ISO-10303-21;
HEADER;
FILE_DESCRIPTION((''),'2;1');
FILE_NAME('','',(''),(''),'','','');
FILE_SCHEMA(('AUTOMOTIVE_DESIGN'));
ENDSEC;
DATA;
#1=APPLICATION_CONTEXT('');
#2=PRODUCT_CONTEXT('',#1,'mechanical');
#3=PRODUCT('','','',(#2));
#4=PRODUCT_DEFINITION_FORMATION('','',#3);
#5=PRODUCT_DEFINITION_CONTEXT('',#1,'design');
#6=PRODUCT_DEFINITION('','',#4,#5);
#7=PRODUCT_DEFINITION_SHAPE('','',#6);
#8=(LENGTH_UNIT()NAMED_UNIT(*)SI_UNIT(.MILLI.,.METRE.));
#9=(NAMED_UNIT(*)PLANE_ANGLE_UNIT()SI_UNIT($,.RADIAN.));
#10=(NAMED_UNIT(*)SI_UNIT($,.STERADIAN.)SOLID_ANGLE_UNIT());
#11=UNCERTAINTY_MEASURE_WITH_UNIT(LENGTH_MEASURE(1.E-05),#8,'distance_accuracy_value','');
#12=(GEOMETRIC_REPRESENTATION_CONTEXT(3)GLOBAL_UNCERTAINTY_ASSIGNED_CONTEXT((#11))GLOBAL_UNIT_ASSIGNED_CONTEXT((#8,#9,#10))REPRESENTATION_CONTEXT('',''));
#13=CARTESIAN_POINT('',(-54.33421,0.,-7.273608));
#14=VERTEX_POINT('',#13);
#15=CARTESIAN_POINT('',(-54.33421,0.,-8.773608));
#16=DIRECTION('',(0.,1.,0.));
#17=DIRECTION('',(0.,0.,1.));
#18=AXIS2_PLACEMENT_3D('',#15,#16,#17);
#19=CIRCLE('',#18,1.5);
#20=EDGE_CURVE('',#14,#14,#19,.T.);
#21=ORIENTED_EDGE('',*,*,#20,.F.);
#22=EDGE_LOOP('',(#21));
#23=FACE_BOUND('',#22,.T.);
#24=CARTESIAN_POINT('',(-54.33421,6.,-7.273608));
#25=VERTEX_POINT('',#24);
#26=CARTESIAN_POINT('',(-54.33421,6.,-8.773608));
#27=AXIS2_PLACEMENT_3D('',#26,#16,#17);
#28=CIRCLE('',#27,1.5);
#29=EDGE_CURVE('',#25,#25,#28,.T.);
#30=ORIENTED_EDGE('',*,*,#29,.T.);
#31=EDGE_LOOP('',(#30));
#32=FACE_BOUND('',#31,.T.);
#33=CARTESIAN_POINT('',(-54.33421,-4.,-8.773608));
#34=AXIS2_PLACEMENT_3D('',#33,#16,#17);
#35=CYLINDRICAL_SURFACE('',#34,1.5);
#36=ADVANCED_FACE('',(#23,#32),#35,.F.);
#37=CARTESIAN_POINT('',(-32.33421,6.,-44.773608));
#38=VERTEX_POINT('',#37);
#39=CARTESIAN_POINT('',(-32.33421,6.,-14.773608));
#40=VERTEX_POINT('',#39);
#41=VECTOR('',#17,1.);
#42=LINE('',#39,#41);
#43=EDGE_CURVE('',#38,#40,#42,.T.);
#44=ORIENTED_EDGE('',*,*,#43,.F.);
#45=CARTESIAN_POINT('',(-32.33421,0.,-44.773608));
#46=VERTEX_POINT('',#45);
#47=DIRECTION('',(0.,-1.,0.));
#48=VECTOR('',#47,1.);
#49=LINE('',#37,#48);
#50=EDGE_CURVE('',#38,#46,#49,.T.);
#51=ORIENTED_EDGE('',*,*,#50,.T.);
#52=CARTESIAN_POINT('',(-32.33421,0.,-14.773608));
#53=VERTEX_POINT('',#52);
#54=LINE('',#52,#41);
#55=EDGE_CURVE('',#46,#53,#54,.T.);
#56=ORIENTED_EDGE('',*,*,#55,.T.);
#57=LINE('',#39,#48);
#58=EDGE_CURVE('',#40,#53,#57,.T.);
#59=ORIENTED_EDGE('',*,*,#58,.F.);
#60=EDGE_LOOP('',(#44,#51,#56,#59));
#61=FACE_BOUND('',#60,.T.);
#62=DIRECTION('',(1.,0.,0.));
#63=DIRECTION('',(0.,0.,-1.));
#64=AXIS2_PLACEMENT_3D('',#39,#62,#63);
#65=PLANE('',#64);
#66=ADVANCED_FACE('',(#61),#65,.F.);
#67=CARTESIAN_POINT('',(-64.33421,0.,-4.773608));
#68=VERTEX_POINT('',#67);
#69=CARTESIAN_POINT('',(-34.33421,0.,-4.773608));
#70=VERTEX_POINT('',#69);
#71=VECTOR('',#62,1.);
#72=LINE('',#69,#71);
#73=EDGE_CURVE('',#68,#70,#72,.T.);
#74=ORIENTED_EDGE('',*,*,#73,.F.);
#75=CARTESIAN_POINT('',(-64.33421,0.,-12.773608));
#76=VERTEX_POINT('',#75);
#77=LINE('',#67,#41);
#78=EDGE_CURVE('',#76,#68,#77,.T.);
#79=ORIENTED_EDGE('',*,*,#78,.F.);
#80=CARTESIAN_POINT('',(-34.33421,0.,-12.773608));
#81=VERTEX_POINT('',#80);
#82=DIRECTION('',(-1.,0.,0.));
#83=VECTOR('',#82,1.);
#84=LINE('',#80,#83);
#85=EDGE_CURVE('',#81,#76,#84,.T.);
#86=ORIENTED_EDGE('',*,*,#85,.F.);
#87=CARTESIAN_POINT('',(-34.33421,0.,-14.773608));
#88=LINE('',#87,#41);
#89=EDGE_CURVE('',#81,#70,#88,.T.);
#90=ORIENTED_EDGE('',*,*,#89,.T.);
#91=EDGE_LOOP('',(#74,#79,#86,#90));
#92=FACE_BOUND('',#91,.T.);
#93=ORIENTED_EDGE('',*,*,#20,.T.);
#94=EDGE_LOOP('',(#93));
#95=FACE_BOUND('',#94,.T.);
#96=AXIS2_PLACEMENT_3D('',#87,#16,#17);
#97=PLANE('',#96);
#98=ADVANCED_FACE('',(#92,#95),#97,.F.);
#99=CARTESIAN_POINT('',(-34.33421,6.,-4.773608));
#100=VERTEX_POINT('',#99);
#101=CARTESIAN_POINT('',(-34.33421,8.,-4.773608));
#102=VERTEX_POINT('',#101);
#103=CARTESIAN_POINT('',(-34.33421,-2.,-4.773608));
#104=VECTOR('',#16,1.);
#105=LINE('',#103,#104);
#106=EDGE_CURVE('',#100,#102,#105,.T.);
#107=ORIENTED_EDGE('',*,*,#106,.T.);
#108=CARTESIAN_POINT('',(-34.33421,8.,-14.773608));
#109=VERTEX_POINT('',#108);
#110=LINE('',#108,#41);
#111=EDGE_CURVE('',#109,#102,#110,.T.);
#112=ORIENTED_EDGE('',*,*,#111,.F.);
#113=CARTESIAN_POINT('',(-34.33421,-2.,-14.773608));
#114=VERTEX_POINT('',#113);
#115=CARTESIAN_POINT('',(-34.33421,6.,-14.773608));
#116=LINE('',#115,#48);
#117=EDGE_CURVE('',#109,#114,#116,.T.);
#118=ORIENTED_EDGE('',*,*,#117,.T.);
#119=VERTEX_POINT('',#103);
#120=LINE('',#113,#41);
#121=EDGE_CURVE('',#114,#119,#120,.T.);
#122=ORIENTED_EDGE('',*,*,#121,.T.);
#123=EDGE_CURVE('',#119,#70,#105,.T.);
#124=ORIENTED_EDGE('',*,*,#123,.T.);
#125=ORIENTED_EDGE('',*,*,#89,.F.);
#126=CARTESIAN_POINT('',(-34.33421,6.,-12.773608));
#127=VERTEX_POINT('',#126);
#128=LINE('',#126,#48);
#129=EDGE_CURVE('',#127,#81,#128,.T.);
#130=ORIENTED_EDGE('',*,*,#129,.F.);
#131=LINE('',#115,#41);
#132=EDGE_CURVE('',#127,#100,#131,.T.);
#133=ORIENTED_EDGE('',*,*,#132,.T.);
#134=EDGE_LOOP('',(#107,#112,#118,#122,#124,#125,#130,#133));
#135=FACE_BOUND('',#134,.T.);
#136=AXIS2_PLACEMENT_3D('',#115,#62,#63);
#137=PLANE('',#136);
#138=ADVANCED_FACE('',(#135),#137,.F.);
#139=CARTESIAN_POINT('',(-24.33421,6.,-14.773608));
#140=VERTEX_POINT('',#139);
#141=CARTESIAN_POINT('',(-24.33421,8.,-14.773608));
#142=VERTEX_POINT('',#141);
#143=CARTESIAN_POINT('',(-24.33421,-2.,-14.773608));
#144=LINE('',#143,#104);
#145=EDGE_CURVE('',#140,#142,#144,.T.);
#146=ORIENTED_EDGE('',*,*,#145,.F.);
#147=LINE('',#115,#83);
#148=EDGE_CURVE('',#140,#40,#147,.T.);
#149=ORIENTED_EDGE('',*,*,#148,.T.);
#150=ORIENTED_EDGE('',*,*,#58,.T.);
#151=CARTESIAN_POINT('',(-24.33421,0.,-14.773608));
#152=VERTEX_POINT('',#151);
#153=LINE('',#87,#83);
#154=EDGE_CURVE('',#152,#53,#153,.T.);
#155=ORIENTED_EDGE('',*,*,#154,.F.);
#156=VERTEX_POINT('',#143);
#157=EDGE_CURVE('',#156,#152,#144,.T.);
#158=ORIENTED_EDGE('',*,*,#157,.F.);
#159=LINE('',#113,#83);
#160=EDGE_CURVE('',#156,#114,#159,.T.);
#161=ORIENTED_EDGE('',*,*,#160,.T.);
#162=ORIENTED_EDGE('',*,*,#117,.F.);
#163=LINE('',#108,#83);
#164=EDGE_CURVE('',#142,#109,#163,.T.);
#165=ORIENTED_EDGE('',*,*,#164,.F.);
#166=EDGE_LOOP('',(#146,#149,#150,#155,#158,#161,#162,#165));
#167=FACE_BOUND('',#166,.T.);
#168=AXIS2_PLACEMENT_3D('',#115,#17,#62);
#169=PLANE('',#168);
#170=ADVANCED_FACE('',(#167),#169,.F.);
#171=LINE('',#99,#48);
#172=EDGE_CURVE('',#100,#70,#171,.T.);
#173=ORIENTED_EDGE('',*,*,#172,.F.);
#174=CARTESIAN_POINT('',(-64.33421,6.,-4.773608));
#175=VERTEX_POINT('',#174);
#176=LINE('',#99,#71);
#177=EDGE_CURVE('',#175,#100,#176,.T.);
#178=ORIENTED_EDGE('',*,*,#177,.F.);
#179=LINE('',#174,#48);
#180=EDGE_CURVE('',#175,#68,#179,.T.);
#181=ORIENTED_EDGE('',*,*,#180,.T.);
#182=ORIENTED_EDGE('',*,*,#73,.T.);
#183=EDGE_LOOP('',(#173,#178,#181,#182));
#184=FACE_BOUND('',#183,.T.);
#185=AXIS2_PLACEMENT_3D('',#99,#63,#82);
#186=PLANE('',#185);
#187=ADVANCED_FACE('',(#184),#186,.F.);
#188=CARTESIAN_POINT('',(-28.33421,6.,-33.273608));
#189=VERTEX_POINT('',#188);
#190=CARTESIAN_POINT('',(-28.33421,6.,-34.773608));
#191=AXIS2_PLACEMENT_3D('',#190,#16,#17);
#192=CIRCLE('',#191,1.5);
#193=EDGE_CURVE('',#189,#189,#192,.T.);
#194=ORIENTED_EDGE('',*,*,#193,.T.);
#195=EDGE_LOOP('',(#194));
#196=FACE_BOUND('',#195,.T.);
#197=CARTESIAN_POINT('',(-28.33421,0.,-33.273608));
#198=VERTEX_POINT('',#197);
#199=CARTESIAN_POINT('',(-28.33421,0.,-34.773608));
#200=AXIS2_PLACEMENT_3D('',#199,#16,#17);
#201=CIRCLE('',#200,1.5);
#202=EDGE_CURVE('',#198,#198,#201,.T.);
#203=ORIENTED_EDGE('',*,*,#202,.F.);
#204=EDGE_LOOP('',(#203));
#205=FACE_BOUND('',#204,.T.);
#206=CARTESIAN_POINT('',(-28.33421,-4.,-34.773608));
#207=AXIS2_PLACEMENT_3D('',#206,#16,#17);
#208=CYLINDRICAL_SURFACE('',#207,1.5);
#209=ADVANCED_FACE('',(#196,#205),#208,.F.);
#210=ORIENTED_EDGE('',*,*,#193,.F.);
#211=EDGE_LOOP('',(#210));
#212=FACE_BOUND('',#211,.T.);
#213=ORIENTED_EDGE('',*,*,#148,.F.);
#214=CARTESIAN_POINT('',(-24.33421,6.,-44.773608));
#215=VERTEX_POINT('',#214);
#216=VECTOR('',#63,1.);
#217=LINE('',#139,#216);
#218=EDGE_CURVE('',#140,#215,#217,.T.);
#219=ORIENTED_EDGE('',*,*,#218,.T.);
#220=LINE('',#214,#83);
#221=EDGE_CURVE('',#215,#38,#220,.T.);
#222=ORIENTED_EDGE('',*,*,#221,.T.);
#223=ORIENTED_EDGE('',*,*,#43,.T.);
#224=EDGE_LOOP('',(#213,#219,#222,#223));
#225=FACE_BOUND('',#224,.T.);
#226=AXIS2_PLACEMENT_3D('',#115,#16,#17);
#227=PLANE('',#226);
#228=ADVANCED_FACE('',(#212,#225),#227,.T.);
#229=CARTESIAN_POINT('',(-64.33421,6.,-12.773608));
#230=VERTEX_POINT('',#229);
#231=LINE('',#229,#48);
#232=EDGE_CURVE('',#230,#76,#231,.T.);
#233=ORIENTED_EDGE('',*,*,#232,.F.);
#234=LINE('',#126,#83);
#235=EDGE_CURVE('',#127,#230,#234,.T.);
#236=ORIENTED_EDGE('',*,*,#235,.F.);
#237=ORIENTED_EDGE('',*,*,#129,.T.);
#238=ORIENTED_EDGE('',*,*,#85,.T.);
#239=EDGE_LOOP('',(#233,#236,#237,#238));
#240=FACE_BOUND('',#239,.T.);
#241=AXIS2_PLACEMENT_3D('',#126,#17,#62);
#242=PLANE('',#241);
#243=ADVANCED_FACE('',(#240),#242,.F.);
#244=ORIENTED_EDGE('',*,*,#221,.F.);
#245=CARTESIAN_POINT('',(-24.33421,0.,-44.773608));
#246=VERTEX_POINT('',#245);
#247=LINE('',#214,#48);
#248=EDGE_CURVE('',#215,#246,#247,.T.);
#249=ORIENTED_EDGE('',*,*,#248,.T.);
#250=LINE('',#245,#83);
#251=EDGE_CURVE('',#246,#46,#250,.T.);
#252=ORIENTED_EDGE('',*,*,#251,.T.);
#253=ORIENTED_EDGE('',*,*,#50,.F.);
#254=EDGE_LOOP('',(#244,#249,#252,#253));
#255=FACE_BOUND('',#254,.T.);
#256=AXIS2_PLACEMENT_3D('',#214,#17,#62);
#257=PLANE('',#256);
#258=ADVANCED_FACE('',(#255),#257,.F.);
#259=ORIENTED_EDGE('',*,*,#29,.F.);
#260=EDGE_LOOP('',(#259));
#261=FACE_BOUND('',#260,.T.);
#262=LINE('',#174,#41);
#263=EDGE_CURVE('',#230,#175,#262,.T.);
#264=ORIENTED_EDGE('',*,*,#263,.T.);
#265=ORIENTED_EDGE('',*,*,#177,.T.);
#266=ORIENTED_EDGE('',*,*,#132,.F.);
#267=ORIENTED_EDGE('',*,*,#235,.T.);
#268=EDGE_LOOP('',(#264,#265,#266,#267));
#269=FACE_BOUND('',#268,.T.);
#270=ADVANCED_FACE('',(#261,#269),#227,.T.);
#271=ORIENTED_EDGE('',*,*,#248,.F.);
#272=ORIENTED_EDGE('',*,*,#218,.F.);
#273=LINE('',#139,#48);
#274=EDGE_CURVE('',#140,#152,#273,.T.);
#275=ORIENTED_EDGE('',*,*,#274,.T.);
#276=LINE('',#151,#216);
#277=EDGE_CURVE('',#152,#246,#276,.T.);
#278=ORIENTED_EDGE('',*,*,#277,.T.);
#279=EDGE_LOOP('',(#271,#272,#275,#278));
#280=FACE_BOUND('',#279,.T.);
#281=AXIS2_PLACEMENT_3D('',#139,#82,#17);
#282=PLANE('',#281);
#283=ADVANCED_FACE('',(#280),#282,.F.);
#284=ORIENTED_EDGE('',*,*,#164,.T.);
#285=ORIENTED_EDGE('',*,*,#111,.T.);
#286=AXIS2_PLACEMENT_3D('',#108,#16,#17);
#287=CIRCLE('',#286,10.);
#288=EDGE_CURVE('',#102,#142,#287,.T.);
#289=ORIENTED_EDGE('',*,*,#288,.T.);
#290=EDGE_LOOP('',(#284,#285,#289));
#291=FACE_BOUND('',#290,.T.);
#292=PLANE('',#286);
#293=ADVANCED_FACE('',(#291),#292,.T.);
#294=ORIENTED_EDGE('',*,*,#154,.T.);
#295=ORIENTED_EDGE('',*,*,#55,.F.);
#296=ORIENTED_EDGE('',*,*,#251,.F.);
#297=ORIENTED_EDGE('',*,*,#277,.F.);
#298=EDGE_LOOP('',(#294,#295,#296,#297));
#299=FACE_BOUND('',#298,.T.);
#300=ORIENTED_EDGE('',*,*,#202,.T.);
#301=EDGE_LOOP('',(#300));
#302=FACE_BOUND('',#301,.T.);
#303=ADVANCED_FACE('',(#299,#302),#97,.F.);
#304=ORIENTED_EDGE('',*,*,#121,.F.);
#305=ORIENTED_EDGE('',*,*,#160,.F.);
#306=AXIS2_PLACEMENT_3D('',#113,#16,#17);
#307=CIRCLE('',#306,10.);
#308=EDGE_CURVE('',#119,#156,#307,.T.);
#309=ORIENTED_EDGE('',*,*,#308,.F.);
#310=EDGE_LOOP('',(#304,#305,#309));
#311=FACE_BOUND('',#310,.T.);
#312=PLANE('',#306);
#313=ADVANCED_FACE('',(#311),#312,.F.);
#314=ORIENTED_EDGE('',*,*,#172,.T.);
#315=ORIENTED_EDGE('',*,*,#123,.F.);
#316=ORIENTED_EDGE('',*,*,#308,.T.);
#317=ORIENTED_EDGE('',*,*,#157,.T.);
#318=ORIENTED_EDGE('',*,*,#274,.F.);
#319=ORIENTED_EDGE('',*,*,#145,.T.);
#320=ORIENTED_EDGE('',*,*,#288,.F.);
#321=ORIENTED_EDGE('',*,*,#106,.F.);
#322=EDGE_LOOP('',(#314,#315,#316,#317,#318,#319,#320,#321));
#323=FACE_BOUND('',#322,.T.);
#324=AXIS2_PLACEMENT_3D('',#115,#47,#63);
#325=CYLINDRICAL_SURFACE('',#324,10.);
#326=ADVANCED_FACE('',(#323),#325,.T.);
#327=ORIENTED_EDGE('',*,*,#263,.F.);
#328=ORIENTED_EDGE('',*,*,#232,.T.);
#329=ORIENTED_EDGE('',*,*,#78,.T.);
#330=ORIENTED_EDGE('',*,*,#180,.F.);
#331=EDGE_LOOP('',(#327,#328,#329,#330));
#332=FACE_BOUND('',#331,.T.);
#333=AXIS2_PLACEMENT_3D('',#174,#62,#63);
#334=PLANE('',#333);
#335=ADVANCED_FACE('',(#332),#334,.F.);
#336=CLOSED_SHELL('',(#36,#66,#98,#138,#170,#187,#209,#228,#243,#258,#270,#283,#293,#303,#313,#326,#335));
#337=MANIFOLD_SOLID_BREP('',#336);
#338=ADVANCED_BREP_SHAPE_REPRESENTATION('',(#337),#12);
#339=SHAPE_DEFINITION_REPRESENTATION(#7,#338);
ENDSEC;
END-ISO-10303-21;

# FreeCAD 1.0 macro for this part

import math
import FreeCAD as App
import Part
import Sketcher
from FreeCAD import Vector
Q = App.Units.Quantity

doc = App.newDocument("Part")
params = doc.addObject("Spreadsheet::Sheet", "Params")
for row, (alias, value) in enumerate([
    ("sketch1_radius", "10 mm"),
    ("sketch1_width", "2 mm"),
    ("sketch1_width2", "30 mm"),
    ("pad1_length", "6 mm"),
    ("sketch2_radius", "10 mm"),
    ("pad2_length", "2 mm"),
    ("pad2_length2", "8 mm"),
    ("sketch3_diameter", "3 mm"),
    ("pocket1_length", "10 mm"),
], start=1):
    params.set(f"A{row}", alias)
    params.set(f"B{row}", "=" + value)
    params.setAlias(f"B{row}", alias)

body = doc.addObject("PartDesign::Body", "Body")

# Sketch on XZ plane
sketch1 = body.newObject("Sketcher::SketchObject", "Sketch")
sketch1.AttachmentSupport = (doc.getObject("XZ_Plane"), [""])
sketch1.MapMode = "FlatFace"
sketch1.addGeometry([
    Part.LineSegment(Vector(-32.3, -14.8, 0), Vector(-34.3, -14.8, 0)),  # 0
    Part.LineSegment(Vector(-34.3, -14.8, 0), Vector(-34.3, -12.8, 0)),  # 1
    Part.LineSegment(Vector(-34.3, -12.8, 0), Vector(-64.3, -12.8, 0)),  # 2
    Part.LineSegment(Vector(-64.3, -12.8, 0), Vector(-64.3, -4.8, 0)),  # 3
    Part.LineSegment(Vector(-64.3, -4.8, 0), Vector(-34.3, -4.8, 0)),  # 4
    Part.ArcOfCircle(Part.Circle(Vector(-34.3, -14.8, 0), Vector(0, 0, 1), 10), math.radians(0), math.radians(90)),  # 5
    Part.LineSegment(Vector(-24.3, -14.8, 0), Vector(-24.3, -44.8, 0)),  # 6
    Part.LineSegment(Vector(-24.3, -44.8, 0), Vector(-32.3, -44.8, 0)),  # 7
    Part.LineSegment(Vector(-32.3, -44.8, 0), Vector(-32.3, -14.8, 0)),  # 8
], False)
sketch1.addConstraint([
    Sketcher.Constraint("Coincident", 0, 2, 1, 1),
    Sketcher.Constraint("Coincident", 1, 2, 2, 1),
    Sketcher.Constraint("Coincident", 2, 2, 3, 1),
    Sketcher.Constraint("Coincident", 3, 2, 4, 1),
    Sketcher.Constraint("Tangent", 4, 2, 5, 2),
    Sketcher.Constraint("Tangent", 5, 1, 6, 1),
    Sketcher.Constraint("Coincident", 6, 2, 7, 1),
    Sketcher.Constraint("Coincident", 7, 2, 8, 1),
    Sketcher.Constraint("Coincident", 8, 2, 0, 1),
    Sketcher.Constraint("Horizontal", 0),
    Sketcher.Constraint("Vertical", 1),
    Sketcher.Constraint("Horizontal", 2),
    Sketcher.Constraint("Vertical", 3),
    Sketcher.Constraint("Horizontal", 4),
    Sketcher.Constraint("Vertical", 6),
    Sketcher.Constraint("Horizontal", 7),
    Sketcher.Constraint("Vertical", 8),
    Sketcher.Constraint("Coincident", 0, 2, 5, 3),
    Sketcher.Constraint("Equal", 0, 1),
    Sketcher.Constraint("Equal", 4, 6),
    Sketcher.Constraint("Radius", 5, Q("10 mm")),
    Sketcher.Constraint("DistanceX", 0, 2, 0, 1, Q("2 mm")),
    Sketcher.Constraint("DistanceX", 2, 2, 2, 1, Q("30 mm")),
    Sketcher.Constraint("DistanceX", 5, 3, -1, 1, Q("34.33421 mm")),
    Sketcher.Constraint("DistanceY", 5, 3, -1, 1, Q("14.773608 mm")),
])
sketch1.setExpression("Constraints[20]", "Params.sketch1_radius")
sketch1.setExpression("Constraints[21]", "Params.sketch1_width")
sketch1.setExpression("Constraints[22]", "Params.sketch1_width2")
pad1 = body.newObject("PartDesign::Pad", "Pad")
pad1.Profile = sketch1
pad1.setExpression("Length", "Params.pad1_length")
pad1.Reversed = True

# Sketch on XZ plane
sketch2 = body.newObject("Sketcher::SketchObject", "Sketch001")
sketch2.AttachmentSupport = (doc.getObject("XZ_Plane"), [""])
sketch2.MapMode = "FlatFace"
sketch2.AttachmentOffset = App.Placement(Vector(0, 0, -6), App.Rotation())
sketch2.addGeometry([
    Part.LineSegment(Vector(-24, -15, 0), Vector(-34, -15, 0)),
    Part.LineSegment(Vector(-34, -15, 0), Vector(-34, -5, 0)),
    Part.ArcOfCircle(Part.Circle(Vector(-34, -15, 0), Vector(0, 0, 1), 10), math.radians(0), math.radians(90)),
], False)
sketch2.addConstraint([
    Sketcher.Constraint("Coincident", 0, 2, 1, 1),
    Sketcher.Constraint("Coincident", 1, 2, 2, 2),
    Sketcher.Constraint("Coincident", 2, 1, 0, 1),
    Sketcher.Constraint("Horizontal", 0),
    Sketcher.Constraint("Vertical", 1),
    Sketcher.Constraint("Coincident", 0, 2, 2, 3),
    Sketcher.Constraint("Radius", 2, Q("10 mm")),
    Sketcher.Constraint("DistanceX", 2, 3, -1, 1, Q("34.33421 mm")),
    Sketcher.Constraint("DistanceY", 2, 3, -1, 1, Q("14.773608 mm")),
])
sketch2.setExpression("Constraints[6]", "Params.sketch2_radius")
pad2 = body.newObject("PartDesign::Pad", "Pad001")
pad2.Profile = sketch2
pad2.Type = "TwoLengths"
pad2.setExpression("Length", "Params.pad2_length")
pad2.setExpression("Length2", "Params.pad2_length2")
pad2.Reversed = True

# Sketch on XZ plane
sketch3 = body.newObject("Sketcher::SketchObject", "Sketch002")
sketch3.AttachmentSupport = (doc.getObject("XZ_Plane"), [""])
sketch3.MapMode = "FlatFace"
sketch3.AttachmentOffset = App.Placement(Vector(0, 0, -6), App.Rotation())
sketch3.addGeometry([
    Part.Circle(Vector(-54.3, -8.8, 0), Vector(0, 0, 1), 1.5),
    Part.Circle(Vector(-28.3, -34.8, 0), Vector(0, 0, 1), 1.5),
], False)
sketch3.addConstraint([
    Sketcher.Constraint("Equal", 0, 1),
    Sketcher.Constraint("Diameter", 0, Q("3 mm")),
    Sketcher.Constraint("DistanceX", 0, 3, 1, 3, Q("26 mm")),
    Sketcher.Constraint("DistanceY", 1, 3, 0, 3, Q("26 mm")),
    Sketcher.Constraint("DistanceX", 0, 3, -1, 1, Q("54.33421 mm")),
    Sketcher.Constraint("DistanceY", 0, 3, -1, 1, Q("8.773608 mm")),
])
sketch3.setExpression("Constraints[1]", "Params.sketch3_diameter")
pocket1 = body.newObject("PartDesign::Pocket", "Pocket")
pocket1.Profile = sketch3
pocket1.setExpression("Length", "Params.pocket1_length")
pocket1.Reversed = True

doc.recompute()
